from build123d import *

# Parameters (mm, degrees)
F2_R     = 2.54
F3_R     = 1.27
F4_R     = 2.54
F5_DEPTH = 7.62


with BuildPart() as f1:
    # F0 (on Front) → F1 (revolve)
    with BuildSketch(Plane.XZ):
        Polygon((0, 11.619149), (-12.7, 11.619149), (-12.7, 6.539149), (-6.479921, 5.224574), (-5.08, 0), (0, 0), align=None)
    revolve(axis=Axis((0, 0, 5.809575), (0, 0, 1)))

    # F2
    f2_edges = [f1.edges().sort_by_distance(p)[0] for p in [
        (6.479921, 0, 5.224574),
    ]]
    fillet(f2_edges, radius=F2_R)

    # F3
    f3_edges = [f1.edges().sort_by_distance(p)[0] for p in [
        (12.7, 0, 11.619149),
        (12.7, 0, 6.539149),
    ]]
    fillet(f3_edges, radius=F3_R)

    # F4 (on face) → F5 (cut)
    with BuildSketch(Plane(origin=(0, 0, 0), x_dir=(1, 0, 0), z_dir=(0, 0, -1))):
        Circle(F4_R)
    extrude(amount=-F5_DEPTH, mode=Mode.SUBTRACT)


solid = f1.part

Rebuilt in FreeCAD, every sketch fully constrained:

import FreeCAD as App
import Part
import Sketcher
from FreeCAD import Vector
Q = App.Units.Quantity


def edges_at(feature, points):
    """Names of the edges that pass closest to the given points."""
    edges = feature.Shape.Edges
    near = lambda p: min(range(len(edges)), key=lambda i: edges[i].distToShape(Part.Vertex(*p))[0])
    return sorted({f"Edge{near(p) + 1}" for p in points})


def add_polygon(sketch, points):
    """Adds a closed chain of lines whose ends are joined by coincident constraints."""
    first, n = sketch.GeometryCount, len(points)
    for a, b in zip(points, points[1:] + points[:1]):
        sketch.addGeometry(Part.LineSegment(App.Vector(*a, 0), App.Vector(*b, 0)), False)
    for i in range(n):
        sketch.addConstraint(Sketcher.Constraint("Coincident", first + i, 2, first + (i + 1) % n, 1))

doc = App.newDocument("Part")
body = doc.addObject("PartDesign::Body", "Body")

sketch1 = doc.addObject("Sketcher::SketchObject", "Sketch")
body.addObject(sketch1)
sketch1.AttachmentSupport = (doc.XZ_Plane, [""])
sketch1.MapMode = "FlatFace"
add_polygon(sketch1, [(0, 12), (-13, 12), (-13, 7), (-6, 5), (-5, 0), (0, 0)])
sketch1.addConstraint(Sketcher.Constraint("Horizontal", 0))
sketch1.addConstraint(Sketcher.Constraint("Vertical", 1))
sketch1.addConstraint(Sketcher.Constraint("Horizontal", 4))
sketch1.addConstraint(Sketcher.Constraint("Vertical", 5))
sketch1.addConstraint(Sketcher.Constraint("Coincident", 4, 2, -1, 1))
sketch1.addConstraint(Sketcher.Constraint("Equal", 4, 1))
sketch1.addConstraint(Sketcher.Constraint("DistanceX", 0, 2, 0, 1, Q("0.5 in")))
sketch1.addConstraint(Sketcher.Constraint("DistanceX", 4, 1, 4, 2, Q("0.2 in")))
sketch1.addConstraint(Sketcher.Constraint("Angle", 3, Q("-74.999994 deg")))
sketch1.addConstraint(Sketcher.Constraint("DistanceY", 5, 1, 5, 2, 11.619149))
sketch1.addConstraint(Sketcher.Constraint("DistanceX", 2, 2, -1, 1, 6.479921))
revolution = doc.addObject("PartDesign::Revolution", "Revolution")
body.addObject(revolution)
revolution.Profile = sketch1
revolution.ReferenceAxis = (sketch1, ["V_Axis"])
revolution.Angle = 360
doc.recompute()

fillet = doc.addObject("PartDesign::Fillet", "Fillet")
body.addObject(fillet)
fillet.Base = (revolution, edges_at(revolution, [(6.48, 0, 5.225)]))
fillet.Radius = Q("0.1 in")
doc.recompute()

fillet2 = doc.addObject("PartDesign::Fillet", "Fillet001")
body.addObject(fillet2)
fillet2.Base = (fillet, edges_at(fillet, [(12.7, 0, 11.619), (12.7, 0, 6.539)]))
fillet2.Radius = Q("0.05 in")

sketch2 = doc.addObject("Sketcher::SketchObject", "Sketch001")
body.addObject(sketch2)
sketch2.AttachmentSupport = (doc.XY_Plane, [""])
sketch2.MapMode = "FlatFace"
sketch2.addGeometry(Part.Circle(Vector(0, 0, 0), Vector(0, 0, 1), 2.5), False)
sketch2.addConstraint(Sketcher.Constraint("Coincident", 0, 3, -1, 1))
sketch2.addConstraint(Sketcher.Constraint("Diameter", 0, Q("0.2 in")))
pocket1 = doc.addObject("PartDesign::Pocket", "Pocket")
body.addObject(pocket1)
pocket1.Profile = sketch2
pocket1.Length = Q("0.3 in")
pocket1.Reversed = True

doc.recompute()
